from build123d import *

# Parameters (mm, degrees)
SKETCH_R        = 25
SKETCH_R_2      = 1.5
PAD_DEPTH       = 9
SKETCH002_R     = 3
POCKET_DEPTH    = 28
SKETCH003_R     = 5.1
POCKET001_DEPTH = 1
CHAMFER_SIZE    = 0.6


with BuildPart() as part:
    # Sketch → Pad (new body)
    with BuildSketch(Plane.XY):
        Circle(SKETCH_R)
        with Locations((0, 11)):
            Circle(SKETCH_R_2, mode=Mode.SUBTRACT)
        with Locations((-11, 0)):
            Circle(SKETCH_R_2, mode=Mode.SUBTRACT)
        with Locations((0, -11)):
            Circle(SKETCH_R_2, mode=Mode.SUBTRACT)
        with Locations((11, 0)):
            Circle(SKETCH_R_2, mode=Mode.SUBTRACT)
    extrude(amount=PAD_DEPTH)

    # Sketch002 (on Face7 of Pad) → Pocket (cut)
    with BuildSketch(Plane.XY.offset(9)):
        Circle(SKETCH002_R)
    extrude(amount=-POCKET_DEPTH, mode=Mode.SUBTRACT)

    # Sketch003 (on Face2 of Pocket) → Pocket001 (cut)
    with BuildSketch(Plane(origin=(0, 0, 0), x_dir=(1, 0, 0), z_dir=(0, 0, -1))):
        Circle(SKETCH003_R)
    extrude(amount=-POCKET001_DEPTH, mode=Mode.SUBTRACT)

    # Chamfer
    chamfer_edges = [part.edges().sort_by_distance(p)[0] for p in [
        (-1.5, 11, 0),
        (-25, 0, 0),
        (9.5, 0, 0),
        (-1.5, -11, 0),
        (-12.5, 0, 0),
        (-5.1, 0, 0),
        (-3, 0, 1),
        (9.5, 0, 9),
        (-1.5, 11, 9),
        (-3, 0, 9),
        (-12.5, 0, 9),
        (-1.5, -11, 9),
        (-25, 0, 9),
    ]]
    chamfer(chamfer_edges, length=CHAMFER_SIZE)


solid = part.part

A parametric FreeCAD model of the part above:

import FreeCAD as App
import Part
import Sketcher

V = App.Vector
Q = App.Units.Quantity


def edges_at(feature, points):
    """Names of the edges that pass closest to the given points."""
    edges = feature.Shape.Edges
    near = lambda p: min(range(len(edges)), key=lambda i: edges[i].distToShape(Part.Vertex(*p))[0])
    return sorted({f"Edge{near(p) + 1}" for p in points})

doc = App.newDocument("Part")
body = doc.addObject("PartDesign::Body", "Body")

sketch1 = doc.addObject("Sketcher::SketchObject", "Sketch")
body.addObject(sketch1)
sketch1.AttachmentSupport = (doc.XY_Plane, [""])
sketch1.MapMode = "FlatFace"
sketch1.addGeometry([
    Part.Circle(V(0, 0, 0), V(0, 0, 1), 25),
    Part.Circle(V(0, -11, 0), V(0, 0, 1), 1.5),
    Part.Circle(V(-11, 0, 0), V(0, 0, 1), 1.5),
    Part.Circle(V(11, 0, 0), V(0, 0, 1), 1.5),
    Part.Circle(V(0, 11, 0), V(0, 0, 1), 1.5),
], False)
sketch1.addConstraint([
    Sketcher.Constraint("Coincident", 0, 3, -1, 1),
    Sketcher.Constraint("Equal", 1, 2),
    Sketcher.Constraint("Equal", 2, 3),
    Sketcher.Constraint("Equal", 3, 4),
    Sketcher.Constraint("Symmetric", 2, 3, 3, 3, -1, 1),
    Sketcher.Constraint("Symmetric", 1, 3, 4, 3, -1, 1),
    Sketcher.Constraint("PointOnObject", 1, 3, -2),
    Sketcher.Constraint("PointOnObject", 2, 3, -1),
    Sketcher.Constraint("Diameter", 0, Q("50 mm")),
    Sketcher.Constraint("Diameter", 1, Q("3 mm")),
    Sketcher.Constraint("DistanceY", 1, 3, -1, 1, Q("11 mm")),
    Sketcher.Constraint("DistanceX", 2, 3, -1, 1, Q("11 mm")),
])
pad1 = doc.addObject("PartDesign::Pad", "Pad")
body.addObject(pad1)
pad1.Profile = sketch1
pad1.Length = 9

sketch2 = doc.addObject("Sketcher::SketchObject", "Sketch001")
body.addObject(sketch2)
sketch2.AttachmentSupport = (doc.XY_Plane, [""])
sketch2.MapMode = "FlatFace"
sketch2.AttachmentOffset = App.Placement(V(0, 0, 9), App.Rotation())
sketch2.addGeometry(Part.Circle(V(0, 0, 0), V(0, 0, 1), 3), False)
sketch2.addConstraint([
    Sketcher.Constraint("Coincident", 0, 3, -1, 1),
    Sketcher.Constraint("Diameter", 0, Q("6 mm")),
])
pocket1 = doc.addObject("PartDesign::Pocket", "Pocket")
body.addObject(pocket1)
pocket1.Profile = sketch2
pocket1.Length = 28

sketch3 = doc.addObject("Sketcher::SketchObject", "Sketch002")
body.addObject(sketch3)
sketch3.AttachmentSupport = (doc.XY_Plane, [""])
sketch3.MapMode = "FlatFace"
sketch3.addGeometry(Part.Circle(V(0, 0, 0), V(0, 0, 1), 5), False)
sketch3.addConstraint([
    Sketcher.Constraint("Coincident", 0, 3, -1, 1),
    Sketcher.Constraint("Diameter", 0, Q("10.2 mm")),
])
pocket2 = doc.addObject("PartDesign::Pocket", "Pocket001")
body.addObject(pocket2)
pocket2.Profile = sketch3
pocket2.Length = 1
pocket2.Reversed = True
doc.recompute()

chamfer = doc.addObject("PartDesign::Chamfer", "Chamfer")
body.addObject(chamfer)
chamfer.Base = (pocket2, edges_at(pocket2, [
    (-1.5, 11, 0),
    (-25, 0, 0),
    (9.5, 0, 0),
    (-1.5, -11, 0),
    (-12.5, 0, 0),
    (-5.1, 0, 0),
    (-3, 0, 1),
    (9.5, 0, 9),
    (-1.5, 11, 9),
    (-3, 0, 9),
    (-12.5, 0, 9),
    (-1.5, -11, 9),
    (-25, 0, 9),
]))
chamfer.Size = 0.6

doc.recompute()
